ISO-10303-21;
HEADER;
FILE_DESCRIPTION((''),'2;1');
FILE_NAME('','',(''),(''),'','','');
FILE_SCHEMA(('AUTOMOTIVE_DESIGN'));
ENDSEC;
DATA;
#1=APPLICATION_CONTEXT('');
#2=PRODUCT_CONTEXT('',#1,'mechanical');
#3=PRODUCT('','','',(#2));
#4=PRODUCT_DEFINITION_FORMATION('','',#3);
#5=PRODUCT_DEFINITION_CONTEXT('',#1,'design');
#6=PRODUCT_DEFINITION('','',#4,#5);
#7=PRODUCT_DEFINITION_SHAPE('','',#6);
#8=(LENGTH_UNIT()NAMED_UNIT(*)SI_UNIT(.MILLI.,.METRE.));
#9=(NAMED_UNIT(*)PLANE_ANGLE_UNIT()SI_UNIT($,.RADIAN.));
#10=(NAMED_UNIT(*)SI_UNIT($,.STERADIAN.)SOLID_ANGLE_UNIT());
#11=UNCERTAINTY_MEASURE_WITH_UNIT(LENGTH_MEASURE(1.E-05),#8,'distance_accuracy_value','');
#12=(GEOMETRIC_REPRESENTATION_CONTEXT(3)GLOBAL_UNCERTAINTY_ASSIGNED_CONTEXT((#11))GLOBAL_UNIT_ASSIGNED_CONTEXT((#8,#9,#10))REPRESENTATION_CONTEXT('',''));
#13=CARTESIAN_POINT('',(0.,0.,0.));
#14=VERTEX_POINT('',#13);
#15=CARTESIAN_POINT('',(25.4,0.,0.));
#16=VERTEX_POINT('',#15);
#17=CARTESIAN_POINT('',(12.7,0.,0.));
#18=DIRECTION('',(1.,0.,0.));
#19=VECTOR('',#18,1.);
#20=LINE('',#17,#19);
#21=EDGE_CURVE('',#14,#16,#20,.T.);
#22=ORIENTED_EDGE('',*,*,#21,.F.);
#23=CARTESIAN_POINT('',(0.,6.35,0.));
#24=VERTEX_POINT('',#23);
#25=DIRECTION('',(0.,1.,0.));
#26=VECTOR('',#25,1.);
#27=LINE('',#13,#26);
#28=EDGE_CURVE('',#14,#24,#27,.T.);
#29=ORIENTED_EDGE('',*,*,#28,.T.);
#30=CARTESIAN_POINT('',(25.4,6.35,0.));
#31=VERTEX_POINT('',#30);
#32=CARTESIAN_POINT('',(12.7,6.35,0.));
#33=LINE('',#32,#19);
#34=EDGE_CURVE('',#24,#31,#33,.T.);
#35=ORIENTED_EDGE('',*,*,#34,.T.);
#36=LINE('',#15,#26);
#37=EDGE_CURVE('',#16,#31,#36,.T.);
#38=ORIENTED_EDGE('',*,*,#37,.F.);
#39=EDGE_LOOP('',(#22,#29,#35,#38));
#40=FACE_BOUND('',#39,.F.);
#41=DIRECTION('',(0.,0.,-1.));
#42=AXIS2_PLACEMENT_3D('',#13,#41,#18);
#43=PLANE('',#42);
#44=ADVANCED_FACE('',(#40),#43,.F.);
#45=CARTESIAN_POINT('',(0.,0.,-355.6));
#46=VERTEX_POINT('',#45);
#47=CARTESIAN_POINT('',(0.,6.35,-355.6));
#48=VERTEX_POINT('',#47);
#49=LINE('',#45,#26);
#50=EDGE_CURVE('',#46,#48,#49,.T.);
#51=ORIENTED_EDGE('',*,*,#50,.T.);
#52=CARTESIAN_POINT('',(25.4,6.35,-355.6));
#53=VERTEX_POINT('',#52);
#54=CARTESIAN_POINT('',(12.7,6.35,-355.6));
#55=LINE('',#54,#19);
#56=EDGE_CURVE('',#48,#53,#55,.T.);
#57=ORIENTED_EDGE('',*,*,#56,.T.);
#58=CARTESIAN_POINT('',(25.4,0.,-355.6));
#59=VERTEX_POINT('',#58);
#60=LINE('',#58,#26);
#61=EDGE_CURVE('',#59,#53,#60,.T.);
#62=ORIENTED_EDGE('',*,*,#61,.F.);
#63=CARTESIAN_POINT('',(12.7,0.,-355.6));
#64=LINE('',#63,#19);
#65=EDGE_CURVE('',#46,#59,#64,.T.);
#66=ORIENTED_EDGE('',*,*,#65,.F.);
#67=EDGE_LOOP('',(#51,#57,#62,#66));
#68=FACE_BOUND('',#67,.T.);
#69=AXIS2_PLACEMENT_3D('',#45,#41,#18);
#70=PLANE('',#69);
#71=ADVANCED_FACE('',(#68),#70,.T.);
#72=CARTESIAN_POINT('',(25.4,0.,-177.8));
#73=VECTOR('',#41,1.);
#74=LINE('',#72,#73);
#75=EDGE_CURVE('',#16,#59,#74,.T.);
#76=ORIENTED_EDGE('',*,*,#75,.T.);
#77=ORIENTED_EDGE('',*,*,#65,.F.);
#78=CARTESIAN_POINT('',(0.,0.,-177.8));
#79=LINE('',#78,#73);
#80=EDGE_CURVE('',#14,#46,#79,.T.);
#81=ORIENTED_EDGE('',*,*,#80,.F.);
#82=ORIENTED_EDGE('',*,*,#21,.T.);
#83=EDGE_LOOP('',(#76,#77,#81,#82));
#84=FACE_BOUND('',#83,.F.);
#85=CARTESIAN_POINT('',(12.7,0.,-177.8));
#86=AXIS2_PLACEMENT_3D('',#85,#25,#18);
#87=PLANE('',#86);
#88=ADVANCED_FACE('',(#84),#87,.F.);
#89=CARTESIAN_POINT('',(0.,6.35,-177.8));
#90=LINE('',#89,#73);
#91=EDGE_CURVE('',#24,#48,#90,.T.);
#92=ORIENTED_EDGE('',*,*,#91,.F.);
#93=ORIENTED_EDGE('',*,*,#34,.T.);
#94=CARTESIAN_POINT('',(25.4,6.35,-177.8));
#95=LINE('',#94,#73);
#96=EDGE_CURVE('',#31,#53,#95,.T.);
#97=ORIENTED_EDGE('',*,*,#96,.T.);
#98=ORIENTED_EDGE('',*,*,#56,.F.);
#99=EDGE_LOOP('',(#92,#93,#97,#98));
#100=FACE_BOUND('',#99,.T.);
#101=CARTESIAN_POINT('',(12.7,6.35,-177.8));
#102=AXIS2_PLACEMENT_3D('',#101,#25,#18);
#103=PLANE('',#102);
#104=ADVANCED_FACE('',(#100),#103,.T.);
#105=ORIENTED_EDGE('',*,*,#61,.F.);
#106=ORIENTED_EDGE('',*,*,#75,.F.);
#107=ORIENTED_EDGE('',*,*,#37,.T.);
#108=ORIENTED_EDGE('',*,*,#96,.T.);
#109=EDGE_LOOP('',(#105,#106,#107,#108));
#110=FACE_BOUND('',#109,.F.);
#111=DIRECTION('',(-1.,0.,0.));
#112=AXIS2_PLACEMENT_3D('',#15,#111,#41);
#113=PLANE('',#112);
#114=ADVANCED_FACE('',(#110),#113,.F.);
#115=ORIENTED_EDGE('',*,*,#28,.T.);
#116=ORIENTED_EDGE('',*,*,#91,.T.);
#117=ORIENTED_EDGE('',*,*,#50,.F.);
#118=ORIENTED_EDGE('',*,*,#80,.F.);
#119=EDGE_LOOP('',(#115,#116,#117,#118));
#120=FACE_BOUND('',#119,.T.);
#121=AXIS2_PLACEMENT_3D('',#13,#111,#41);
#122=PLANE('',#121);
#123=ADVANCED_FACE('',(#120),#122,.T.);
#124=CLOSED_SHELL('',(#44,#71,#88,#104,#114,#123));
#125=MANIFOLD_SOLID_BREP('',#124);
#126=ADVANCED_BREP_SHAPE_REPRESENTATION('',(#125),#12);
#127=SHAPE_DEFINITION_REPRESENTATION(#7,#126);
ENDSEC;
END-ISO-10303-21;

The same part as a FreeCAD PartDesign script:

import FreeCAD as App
import Part
import Sketcher
from FreeCAD import Vector
Q = App.Units.Quantity


def add_polygon(sketch, points):
    """Adds a closed chain of lines whose ends are joined by coincident constraints."""
    first, n = sketch.GeometryCount, len(points)
    for a, b in zip(points, points[1:] + points[:1]):
        sketch.addGeometry(Part.LineSegment(App.Vector(*a, 0), App.Vector(*b, 0)), False)
    for i in range(n):
        sketch.addConstraint(Sketcher.Constraint("Coincident", first + i, 2, first + (i + 1) % n, 1))

doc = App.newDocument("Part")
body = doc.addObject("PartDesign::Body", "Body")

# Sketch on XZ plane
sketch1 = body.newObject("Sketcher::SketchObject", "Sketch")
sketch1.AttachmentSupport = (doc.getObject("XZ_Plane"), [""])
sketch1.MapMode = "FlatFace"
add_polygon(sketch1, [(0, -356), (0, 0), (25, 0), (25, -356)])  # lines 0-3
sketch1.addConstraint([
    Sketcher.Constraint("Vertical", 0),
    Sketcher.Constraint("Horizontal", 1),
    Sketcher.Constraint("Vertical", 2),
    Sketcher.Constraint("Horizontal", 3),
    Sketcher.Constraint("Coincident", 0, 2, -1, 1),
    Sketcher.Constraint("DistanceX", 1, 1, 1, 2, Q("1 in")),
    Sketcher.Constraint("DistanceY", 0, 1, 0, 2, Q("14 in")),
])
pad1 = body.newObject("PartDesign::Pad", "Pad")
pad1.Profile = sketch1
pad1.Length = Q("0.25 in")
pad1.Reversed = True

doc.recompute()
